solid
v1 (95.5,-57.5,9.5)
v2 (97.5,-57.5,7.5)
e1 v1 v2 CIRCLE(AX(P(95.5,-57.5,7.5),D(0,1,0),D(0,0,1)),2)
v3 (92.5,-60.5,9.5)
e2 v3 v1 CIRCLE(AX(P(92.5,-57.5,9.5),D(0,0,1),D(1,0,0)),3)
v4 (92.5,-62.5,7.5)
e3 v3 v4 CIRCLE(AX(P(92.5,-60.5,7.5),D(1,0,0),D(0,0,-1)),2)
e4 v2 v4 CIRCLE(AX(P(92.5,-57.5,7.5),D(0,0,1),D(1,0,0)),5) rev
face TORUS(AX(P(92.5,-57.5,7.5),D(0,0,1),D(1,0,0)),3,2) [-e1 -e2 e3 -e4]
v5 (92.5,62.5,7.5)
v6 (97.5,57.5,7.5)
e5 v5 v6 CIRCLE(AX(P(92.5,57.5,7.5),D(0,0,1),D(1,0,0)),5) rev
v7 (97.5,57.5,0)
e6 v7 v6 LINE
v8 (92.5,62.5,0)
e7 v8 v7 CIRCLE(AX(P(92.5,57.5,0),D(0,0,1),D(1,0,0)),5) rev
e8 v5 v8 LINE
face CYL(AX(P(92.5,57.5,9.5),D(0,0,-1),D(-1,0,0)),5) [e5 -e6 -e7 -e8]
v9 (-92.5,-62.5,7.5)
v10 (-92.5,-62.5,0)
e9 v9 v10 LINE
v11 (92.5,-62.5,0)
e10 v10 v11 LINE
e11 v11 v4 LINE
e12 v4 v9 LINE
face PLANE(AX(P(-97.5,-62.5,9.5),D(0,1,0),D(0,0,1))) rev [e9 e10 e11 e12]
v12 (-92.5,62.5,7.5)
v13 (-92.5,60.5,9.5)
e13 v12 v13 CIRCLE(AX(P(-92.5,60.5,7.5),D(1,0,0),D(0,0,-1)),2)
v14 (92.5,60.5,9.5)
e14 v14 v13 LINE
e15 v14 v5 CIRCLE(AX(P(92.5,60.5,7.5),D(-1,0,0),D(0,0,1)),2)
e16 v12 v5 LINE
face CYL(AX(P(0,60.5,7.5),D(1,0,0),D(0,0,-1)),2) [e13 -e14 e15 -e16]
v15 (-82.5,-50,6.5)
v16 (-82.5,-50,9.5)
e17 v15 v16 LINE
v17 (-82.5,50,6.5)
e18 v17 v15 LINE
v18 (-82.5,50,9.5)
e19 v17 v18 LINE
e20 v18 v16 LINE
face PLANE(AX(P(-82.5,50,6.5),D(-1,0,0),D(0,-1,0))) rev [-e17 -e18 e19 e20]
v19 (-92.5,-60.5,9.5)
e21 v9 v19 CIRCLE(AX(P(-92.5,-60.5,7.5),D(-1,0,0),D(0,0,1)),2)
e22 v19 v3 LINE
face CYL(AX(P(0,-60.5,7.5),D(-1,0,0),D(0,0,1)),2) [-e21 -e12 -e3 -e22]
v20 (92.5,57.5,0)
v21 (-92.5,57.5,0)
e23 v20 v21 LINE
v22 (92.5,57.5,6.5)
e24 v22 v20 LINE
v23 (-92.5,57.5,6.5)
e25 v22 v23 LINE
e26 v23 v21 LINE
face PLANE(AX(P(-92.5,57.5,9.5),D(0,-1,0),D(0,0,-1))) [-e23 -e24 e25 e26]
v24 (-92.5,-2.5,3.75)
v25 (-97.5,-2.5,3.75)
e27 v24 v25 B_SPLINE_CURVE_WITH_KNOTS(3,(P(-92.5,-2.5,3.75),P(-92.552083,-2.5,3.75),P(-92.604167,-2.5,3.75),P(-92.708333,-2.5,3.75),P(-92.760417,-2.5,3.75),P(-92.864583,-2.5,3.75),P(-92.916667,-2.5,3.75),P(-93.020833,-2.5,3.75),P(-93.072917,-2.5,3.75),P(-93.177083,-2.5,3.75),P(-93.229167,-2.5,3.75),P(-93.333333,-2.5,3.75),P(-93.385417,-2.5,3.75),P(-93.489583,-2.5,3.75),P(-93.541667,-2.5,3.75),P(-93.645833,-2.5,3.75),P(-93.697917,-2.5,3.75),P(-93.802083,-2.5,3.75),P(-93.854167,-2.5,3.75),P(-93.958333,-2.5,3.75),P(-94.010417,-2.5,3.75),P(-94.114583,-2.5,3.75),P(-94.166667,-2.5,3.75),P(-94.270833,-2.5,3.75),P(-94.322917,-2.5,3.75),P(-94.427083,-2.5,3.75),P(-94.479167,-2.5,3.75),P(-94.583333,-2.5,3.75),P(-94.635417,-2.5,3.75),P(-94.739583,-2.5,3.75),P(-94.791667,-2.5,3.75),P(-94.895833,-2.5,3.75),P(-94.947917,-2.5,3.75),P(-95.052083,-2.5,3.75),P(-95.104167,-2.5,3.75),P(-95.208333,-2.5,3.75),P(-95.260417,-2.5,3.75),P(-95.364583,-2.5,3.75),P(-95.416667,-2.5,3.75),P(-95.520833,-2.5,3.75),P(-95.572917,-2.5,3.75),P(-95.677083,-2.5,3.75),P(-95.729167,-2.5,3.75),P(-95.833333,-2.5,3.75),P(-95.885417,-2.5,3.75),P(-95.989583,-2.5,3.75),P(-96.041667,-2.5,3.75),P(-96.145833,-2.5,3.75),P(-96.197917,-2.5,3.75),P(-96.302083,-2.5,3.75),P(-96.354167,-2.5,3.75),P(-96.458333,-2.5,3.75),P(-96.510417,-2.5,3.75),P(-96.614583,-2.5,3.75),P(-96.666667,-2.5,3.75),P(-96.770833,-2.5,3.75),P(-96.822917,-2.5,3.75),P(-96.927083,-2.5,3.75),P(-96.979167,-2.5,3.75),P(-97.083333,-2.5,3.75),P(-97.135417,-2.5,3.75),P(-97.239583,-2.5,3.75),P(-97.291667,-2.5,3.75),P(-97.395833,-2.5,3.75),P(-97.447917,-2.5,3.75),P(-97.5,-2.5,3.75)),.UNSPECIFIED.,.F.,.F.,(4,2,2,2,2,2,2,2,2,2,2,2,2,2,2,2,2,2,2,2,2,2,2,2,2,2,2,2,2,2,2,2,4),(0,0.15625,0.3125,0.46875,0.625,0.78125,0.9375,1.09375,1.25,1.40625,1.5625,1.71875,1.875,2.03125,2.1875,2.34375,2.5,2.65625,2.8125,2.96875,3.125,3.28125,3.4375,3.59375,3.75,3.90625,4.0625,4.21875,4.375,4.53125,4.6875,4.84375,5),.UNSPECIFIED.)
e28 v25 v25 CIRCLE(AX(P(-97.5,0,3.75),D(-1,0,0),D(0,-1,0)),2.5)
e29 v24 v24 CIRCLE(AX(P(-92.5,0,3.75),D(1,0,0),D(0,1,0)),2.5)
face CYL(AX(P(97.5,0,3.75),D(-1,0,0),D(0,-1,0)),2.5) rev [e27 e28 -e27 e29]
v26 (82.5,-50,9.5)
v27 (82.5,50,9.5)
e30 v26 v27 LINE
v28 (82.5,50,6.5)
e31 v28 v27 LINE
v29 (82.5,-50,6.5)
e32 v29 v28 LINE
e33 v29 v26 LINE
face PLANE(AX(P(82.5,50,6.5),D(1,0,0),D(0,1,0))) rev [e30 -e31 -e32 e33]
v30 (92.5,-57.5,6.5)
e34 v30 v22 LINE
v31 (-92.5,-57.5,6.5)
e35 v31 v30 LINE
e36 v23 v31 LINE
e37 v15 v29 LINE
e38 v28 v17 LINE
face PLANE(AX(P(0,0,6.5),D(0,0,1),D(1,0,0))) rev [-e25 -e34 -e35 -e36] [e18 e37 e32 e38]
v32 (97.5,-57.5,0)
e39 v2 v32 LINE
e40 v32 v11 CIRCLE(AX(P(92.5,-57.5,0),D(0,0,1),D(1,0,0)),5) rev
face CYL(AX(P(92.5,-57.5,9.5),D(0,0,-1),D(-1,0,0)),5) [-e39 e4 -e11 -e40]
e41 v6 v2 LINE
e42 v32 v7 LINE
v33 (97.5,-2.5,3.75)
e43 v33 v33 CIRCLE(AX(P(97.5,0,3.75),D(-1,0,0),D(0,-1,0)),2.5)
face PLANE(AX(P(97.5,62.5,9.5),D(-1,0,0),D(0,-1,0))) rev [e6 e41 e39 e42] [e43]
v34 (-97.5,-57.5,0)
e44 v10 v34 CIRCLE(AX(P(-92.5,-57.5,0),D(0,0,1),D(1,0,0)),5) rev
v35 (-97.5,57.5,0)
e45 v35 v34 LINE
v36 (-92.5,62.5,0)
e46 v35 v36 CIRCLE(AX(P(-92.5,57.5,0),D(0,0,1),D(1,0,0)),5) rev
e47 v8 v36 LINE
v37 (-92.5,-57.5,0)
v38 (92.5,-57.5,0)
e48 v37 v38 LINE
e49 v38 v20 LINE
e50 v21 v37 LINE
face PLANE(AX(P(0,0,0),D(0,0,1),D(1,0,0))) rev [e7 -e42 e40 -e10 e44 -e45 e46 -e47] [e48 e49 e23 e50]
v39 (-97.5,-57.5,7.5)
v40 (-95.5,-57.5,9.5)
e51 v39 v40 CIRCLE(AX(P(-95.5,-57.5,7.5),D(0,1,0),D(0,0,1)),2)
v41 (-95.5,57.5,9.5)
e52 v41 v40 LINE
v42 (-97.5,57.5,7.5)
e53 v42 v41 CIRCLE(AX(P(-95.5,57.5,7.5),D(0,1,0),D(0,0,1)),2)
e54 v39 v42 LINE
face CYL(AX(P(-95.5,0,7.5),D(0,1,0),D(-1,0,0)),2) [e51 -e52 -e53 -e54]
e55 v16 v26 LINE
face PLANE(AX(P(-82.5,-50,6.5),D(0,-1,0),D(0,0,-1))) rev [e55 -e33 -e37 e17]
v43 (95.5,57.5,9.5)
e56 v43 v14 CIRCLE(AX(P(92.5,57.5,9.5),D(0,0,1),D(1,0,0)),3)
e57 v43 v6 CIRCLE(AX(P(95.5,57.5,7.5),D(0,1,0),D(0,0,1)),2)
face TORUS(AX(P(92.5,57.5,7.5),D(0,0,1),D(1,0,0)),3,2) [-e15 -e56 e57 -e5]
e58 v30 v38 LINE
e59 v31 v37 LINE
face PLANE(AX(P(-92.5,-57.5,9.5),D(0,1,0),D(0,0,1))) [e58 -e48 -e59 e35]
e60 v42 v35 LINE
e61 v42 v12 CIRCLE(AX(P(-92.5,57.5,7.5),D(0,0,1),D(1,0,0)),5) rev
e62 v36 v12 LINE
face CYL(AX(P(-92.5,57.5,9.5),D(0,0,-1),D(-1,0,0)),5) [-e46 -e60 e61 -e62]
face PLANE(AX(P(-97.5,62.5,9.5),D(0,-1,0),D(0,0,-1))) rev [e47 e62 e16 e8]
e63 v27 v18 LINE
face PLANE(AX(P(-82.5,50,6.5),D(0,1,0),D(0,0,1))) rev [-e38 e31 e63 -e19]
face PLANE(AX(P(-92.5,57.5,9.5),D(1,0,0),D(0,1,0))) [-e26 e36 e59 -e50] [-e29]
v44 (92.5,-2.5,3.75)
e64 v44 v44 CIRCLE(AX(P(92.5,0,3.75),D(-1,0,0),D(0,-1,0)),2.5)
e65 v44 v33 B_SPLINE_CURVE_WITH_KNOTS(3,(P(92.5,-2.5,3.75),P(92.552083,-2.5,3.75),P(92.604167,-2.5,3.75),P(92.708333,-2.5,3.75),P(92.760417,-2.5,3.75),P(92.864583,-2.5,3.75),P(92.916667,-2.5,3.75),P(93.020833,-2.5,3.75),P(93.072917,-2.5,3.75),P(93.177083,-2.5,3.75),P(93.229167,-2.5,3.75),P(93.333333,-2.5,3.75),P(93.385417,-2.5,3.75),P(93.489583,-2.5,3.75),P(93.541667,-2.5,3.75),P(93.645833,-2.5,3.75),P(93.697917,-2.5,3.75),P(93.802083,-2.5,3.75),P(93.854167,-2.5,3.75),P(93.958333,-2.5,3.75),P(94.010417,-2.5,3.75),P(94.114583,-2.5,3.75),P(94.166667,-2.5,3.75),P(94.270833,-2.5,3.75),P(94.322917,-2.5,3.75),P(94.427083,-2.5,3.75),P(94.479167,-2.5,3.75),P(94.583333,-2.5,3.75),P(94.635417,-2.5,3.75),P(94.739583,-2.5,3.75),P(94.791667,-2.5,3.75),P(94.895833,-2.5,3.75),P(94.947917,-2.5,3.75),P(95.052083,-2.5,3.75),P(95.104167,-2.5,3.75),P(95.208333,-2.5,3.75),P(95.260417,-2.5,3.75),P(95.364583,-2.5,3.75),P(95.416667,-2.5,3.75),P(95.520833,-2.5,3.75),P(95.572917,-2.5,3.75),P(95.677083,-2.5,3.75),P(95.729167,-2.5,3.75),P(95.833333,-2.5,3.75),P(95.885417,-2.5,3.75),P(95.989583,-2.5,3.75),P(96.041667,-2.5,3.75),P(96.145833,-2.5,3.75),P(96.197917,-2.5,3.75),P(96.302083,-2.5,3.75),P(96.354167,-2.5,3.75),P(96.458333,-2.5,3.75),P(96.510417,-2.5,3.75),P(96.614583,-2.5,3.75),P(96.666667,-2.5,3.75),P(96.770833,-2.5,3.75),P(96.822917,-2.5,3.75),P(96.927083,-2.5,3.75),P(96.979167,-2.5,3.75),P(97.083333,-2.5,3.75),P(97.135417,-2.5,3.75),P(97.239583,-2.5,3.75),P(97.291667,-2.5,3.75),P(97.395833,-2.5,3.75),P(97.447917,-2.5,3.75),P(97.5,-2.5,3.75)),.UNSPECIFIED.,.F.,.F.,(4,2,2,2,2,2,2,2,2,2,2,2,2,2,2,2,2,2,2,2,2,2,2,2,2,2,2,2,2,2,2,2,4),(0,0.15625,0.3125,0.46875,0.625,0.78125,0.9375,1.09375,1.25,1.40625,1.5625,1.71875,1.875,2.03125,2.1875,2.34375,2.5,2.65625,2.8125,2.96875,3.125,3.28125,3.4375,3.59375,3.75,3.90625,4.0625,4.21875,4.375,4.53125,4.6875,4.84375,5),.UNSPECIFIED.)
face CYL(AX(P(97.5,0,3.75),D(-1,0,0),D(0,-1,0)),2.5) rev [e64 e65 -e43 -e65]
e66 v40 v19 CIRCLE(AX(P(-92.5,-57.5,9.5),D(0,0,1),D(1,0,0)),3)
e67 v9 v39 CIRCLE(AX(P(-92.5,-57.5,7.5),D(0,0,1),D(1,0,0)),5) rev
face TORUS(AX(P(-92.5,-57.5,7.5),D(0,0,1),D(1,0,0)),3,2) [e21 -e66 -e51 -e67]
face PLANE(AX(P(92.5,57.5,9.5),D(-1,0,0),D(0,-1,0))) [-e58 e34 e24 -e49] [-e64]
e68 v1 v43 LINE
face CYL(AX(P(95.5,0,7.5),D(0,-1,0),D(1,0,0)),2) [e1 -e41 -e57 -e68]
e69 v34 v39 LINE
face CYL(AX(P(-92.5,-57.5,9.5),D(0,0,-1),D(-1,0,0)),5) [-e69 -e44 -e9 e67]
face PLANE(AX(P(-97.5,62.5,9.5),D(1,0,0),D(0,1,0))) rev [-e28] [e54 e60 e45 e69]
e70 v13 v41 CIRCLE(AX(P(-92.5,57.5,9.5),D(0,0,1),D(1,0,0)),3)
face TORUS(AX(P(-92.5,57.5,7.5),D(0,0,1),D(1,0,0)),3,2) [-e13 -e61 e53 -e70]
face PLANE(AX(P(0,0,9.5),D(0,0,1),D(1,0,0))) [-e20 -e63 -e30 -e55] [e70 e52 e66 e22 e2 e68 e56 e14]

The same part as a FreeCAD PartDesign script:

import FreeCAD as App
import Part
import Sketcher


def edges_at(feature, points):
    """Names of the edges that pass closest to the given points."""
    edges = feature.Shape.Edges
    near = lambda p: min(range(len(edges)), key=lambda i: edges[i].distToShape(Part.Vertex(*p))[0])
    return sorted({f"Edge{near(p) + 1}" for p in points})


def add_polygon(sketch, points):
    """Adds a closed chain of lines whose ends are joined by coincident constraints."""
    first, n = sketch.GeometryCount, len(points)
    for a, b in zip(points, points[1:] + points[:1]):
        sketch.addGeometry(Part.LineSegment(App.Vector(*a, 0), App.Vector(*b, 0)), False)
    for i in range(n):
        sketch.addConstraint(Sketcher.Constraint("Coincident", first + i, 2, first + (i + 1) % n, 1))

doc = App.newDocument("Part")
body = doc.addObject("PartDesign::Body", "Body")

sketch1 = body.newObject("Sketcher::SketchObject", "Sketch")
sketch1.AttachmentSupport = (doc.getObject("XY_Plane"), [""])
sketch1.MapMode = "FlatFace"
add_polygon(sketch1, [(-97.5, 62.5), (-97.5, -62.5), (97.5, -62.5), (97.5, 62.5)])
add_polygon(sketch1, [(92.5, -57.5), (-92.5, -57.5), (-92.5, 57.5), (92.5, 57.5)])
sketch1.addConstraint([
    Sketcher.Constraint("Vertical", 0),
    Sketcher.Constraint("Horizontal", 1),
    Sketcher.Constraint("Vertical", 2),
    Sketcher.Constraint("Horizontal", 3),
    Sketcher.Constraint("Horizontal", 4),
    Sketcher.Constraint("Vertical", 5),
    Sketcher.Constraint("Horizontal", 6),
    Sketcher.Constraint("Vertical", 7),
    Sketcher.Constraint("Symmetric", 0, 2, 2, 2, -1, 1),
    Sketcher.Constraint("Symmetric", 4, 2, 6, 2, -1, 1),
    Sketcher.Constraint("DistanceX", 1, 1, 1, 2, 195.0),
    Sketcher.Constraint("DistanceX", 4, 2, 4, 1, 185.0),
    Sketcher.Constraint("DistanceY", 0, 2, 0, 1, 125.0),
    Sketcher.Constraint("DistanceY", 5, 1, 5, 2, 115.0),
])
pad1 = body.newObject("PartDesign::Pad", "Pad")
pad1.Profile = sketch1
pad1.Length = 9.5

sketch2 = body.newObject("Sketcher::SketchObject", "Sketch001")
sketch2.AttachmentSupport = (doc.getObject("XY_Plane"), [""])
sketch2.MapMode = "FlatFace"
sketch2.AttachmentOffset = App.Placement(App.Vector(0, 0, 9.5), App.Rotation())
add_polygon(sketch2, [(-97.5, 62.5), (-97.5, -62.5), (97.5, -62.5), (97.5, 62.5)])
add_polygon(sketch2, [(82.5, -50), (-82.5, -50), (-82.5, 50), (82.5, 50)])
sketch2.addConstraint([
    Sketcher.Constraint("Vertical", 0),
    Sketcher.Constraint("Horizontal", 1),
    Sketcher.Constraint("Vertical", 2),
    Sketcher.Constraint("Horizontal", 3),
    Sketcher.Constraint("Horizontal", 4),
    Sketcher.Constraint("Vertical", 5),
    Sketcher.Constraint("Horizontal", 6),
    Sketcher.Constraint("Vertical", 7),
    Sketcher.Constraint("Symmetric", 0, 2, 2, 2, -1, 1),
    Sketcher.Constraint("Symmetric", 4, 2, 6, 2, -1, 1),
    Sketcher.Constraint("DistanceX", 1, 1, 1, 2, 195.0),
    Sketcher.Constraint("DistanceX", 4, 2, 4, 1, 165.0),
    Sketcher.Constraint("DistanceY", 0, 2, 0, 1, 125.0),
    Sketcher.Constraint("DistanceY", 5, 1, 5, 2, 100.0),
])
pad2 = body.newObject("PartDesign::Pad", "Pad001")
pad2.Profile = sketch2
pad2.Length = 3
pad2.Reversed = True
doc.recompute()

fillet = body.newObject("PartDesign::Fillet", "Fillet")
fillet.Base = (pad2, edges_at(pad2, [
    (-97.5, 62.5, 4.75),
    (97.5, 62.5, 4.75),
    (97.5, -62.5, 4.75),
    (-97.5, -62.5, 4.75),
]))
fillet.Radius = 5
doc.recompute()

fillet2 = body.newObject("PartDesign::Fillet", "Fillet001")
fillet2.Base = (fillet, edges_at(fillet, [
    (0, 62.5, 9.5),
    (-96.036, 61.036, 9.5),
    (96.036, 61.036, 9.5),
    (-97.5, 0, 9.5),
    (97.5, 0, 9.5),
    (-96.036, -61.036, 9.5),
    (96.036, -61.036, 9.5),
    (0, -62.5, 9.5),
]))
fillet2.Radius = 2

sketch3 = body.newObject("Sketcher::SketchObject", "Sketch002")
sketch3.AttachmentSupport = (doc.getObject("YZ_Plane"), [""])
sketch3.MapMode = "FlatFace"
sketch3.AttachmentOffset = App.Placement(App.Vector(0, 0, -97.5), App.Rotation())
sketch3.addGeometry(Part.Circle(App.Vector(0, 3.75, 0), App.Vector(0, 0, 1), 2.5), False)
sketch3.addConstraint([
    Sketcher.Constraint("PointOnObject", 0, 3, -2),
    Sketcher.Constraint("Diameter", 0, 5.0),
    Sketcher.Constraint("DistanceY", -1, 1, 0, 3, 3.75),
])
pocket1 = body.newObject("PartDesign::Pocket", "Pocket")
pocket1.Profile = sketch3
pocket1.Type = "ThroughAll"
pocket1.Reversed = True

doc.recompute()
